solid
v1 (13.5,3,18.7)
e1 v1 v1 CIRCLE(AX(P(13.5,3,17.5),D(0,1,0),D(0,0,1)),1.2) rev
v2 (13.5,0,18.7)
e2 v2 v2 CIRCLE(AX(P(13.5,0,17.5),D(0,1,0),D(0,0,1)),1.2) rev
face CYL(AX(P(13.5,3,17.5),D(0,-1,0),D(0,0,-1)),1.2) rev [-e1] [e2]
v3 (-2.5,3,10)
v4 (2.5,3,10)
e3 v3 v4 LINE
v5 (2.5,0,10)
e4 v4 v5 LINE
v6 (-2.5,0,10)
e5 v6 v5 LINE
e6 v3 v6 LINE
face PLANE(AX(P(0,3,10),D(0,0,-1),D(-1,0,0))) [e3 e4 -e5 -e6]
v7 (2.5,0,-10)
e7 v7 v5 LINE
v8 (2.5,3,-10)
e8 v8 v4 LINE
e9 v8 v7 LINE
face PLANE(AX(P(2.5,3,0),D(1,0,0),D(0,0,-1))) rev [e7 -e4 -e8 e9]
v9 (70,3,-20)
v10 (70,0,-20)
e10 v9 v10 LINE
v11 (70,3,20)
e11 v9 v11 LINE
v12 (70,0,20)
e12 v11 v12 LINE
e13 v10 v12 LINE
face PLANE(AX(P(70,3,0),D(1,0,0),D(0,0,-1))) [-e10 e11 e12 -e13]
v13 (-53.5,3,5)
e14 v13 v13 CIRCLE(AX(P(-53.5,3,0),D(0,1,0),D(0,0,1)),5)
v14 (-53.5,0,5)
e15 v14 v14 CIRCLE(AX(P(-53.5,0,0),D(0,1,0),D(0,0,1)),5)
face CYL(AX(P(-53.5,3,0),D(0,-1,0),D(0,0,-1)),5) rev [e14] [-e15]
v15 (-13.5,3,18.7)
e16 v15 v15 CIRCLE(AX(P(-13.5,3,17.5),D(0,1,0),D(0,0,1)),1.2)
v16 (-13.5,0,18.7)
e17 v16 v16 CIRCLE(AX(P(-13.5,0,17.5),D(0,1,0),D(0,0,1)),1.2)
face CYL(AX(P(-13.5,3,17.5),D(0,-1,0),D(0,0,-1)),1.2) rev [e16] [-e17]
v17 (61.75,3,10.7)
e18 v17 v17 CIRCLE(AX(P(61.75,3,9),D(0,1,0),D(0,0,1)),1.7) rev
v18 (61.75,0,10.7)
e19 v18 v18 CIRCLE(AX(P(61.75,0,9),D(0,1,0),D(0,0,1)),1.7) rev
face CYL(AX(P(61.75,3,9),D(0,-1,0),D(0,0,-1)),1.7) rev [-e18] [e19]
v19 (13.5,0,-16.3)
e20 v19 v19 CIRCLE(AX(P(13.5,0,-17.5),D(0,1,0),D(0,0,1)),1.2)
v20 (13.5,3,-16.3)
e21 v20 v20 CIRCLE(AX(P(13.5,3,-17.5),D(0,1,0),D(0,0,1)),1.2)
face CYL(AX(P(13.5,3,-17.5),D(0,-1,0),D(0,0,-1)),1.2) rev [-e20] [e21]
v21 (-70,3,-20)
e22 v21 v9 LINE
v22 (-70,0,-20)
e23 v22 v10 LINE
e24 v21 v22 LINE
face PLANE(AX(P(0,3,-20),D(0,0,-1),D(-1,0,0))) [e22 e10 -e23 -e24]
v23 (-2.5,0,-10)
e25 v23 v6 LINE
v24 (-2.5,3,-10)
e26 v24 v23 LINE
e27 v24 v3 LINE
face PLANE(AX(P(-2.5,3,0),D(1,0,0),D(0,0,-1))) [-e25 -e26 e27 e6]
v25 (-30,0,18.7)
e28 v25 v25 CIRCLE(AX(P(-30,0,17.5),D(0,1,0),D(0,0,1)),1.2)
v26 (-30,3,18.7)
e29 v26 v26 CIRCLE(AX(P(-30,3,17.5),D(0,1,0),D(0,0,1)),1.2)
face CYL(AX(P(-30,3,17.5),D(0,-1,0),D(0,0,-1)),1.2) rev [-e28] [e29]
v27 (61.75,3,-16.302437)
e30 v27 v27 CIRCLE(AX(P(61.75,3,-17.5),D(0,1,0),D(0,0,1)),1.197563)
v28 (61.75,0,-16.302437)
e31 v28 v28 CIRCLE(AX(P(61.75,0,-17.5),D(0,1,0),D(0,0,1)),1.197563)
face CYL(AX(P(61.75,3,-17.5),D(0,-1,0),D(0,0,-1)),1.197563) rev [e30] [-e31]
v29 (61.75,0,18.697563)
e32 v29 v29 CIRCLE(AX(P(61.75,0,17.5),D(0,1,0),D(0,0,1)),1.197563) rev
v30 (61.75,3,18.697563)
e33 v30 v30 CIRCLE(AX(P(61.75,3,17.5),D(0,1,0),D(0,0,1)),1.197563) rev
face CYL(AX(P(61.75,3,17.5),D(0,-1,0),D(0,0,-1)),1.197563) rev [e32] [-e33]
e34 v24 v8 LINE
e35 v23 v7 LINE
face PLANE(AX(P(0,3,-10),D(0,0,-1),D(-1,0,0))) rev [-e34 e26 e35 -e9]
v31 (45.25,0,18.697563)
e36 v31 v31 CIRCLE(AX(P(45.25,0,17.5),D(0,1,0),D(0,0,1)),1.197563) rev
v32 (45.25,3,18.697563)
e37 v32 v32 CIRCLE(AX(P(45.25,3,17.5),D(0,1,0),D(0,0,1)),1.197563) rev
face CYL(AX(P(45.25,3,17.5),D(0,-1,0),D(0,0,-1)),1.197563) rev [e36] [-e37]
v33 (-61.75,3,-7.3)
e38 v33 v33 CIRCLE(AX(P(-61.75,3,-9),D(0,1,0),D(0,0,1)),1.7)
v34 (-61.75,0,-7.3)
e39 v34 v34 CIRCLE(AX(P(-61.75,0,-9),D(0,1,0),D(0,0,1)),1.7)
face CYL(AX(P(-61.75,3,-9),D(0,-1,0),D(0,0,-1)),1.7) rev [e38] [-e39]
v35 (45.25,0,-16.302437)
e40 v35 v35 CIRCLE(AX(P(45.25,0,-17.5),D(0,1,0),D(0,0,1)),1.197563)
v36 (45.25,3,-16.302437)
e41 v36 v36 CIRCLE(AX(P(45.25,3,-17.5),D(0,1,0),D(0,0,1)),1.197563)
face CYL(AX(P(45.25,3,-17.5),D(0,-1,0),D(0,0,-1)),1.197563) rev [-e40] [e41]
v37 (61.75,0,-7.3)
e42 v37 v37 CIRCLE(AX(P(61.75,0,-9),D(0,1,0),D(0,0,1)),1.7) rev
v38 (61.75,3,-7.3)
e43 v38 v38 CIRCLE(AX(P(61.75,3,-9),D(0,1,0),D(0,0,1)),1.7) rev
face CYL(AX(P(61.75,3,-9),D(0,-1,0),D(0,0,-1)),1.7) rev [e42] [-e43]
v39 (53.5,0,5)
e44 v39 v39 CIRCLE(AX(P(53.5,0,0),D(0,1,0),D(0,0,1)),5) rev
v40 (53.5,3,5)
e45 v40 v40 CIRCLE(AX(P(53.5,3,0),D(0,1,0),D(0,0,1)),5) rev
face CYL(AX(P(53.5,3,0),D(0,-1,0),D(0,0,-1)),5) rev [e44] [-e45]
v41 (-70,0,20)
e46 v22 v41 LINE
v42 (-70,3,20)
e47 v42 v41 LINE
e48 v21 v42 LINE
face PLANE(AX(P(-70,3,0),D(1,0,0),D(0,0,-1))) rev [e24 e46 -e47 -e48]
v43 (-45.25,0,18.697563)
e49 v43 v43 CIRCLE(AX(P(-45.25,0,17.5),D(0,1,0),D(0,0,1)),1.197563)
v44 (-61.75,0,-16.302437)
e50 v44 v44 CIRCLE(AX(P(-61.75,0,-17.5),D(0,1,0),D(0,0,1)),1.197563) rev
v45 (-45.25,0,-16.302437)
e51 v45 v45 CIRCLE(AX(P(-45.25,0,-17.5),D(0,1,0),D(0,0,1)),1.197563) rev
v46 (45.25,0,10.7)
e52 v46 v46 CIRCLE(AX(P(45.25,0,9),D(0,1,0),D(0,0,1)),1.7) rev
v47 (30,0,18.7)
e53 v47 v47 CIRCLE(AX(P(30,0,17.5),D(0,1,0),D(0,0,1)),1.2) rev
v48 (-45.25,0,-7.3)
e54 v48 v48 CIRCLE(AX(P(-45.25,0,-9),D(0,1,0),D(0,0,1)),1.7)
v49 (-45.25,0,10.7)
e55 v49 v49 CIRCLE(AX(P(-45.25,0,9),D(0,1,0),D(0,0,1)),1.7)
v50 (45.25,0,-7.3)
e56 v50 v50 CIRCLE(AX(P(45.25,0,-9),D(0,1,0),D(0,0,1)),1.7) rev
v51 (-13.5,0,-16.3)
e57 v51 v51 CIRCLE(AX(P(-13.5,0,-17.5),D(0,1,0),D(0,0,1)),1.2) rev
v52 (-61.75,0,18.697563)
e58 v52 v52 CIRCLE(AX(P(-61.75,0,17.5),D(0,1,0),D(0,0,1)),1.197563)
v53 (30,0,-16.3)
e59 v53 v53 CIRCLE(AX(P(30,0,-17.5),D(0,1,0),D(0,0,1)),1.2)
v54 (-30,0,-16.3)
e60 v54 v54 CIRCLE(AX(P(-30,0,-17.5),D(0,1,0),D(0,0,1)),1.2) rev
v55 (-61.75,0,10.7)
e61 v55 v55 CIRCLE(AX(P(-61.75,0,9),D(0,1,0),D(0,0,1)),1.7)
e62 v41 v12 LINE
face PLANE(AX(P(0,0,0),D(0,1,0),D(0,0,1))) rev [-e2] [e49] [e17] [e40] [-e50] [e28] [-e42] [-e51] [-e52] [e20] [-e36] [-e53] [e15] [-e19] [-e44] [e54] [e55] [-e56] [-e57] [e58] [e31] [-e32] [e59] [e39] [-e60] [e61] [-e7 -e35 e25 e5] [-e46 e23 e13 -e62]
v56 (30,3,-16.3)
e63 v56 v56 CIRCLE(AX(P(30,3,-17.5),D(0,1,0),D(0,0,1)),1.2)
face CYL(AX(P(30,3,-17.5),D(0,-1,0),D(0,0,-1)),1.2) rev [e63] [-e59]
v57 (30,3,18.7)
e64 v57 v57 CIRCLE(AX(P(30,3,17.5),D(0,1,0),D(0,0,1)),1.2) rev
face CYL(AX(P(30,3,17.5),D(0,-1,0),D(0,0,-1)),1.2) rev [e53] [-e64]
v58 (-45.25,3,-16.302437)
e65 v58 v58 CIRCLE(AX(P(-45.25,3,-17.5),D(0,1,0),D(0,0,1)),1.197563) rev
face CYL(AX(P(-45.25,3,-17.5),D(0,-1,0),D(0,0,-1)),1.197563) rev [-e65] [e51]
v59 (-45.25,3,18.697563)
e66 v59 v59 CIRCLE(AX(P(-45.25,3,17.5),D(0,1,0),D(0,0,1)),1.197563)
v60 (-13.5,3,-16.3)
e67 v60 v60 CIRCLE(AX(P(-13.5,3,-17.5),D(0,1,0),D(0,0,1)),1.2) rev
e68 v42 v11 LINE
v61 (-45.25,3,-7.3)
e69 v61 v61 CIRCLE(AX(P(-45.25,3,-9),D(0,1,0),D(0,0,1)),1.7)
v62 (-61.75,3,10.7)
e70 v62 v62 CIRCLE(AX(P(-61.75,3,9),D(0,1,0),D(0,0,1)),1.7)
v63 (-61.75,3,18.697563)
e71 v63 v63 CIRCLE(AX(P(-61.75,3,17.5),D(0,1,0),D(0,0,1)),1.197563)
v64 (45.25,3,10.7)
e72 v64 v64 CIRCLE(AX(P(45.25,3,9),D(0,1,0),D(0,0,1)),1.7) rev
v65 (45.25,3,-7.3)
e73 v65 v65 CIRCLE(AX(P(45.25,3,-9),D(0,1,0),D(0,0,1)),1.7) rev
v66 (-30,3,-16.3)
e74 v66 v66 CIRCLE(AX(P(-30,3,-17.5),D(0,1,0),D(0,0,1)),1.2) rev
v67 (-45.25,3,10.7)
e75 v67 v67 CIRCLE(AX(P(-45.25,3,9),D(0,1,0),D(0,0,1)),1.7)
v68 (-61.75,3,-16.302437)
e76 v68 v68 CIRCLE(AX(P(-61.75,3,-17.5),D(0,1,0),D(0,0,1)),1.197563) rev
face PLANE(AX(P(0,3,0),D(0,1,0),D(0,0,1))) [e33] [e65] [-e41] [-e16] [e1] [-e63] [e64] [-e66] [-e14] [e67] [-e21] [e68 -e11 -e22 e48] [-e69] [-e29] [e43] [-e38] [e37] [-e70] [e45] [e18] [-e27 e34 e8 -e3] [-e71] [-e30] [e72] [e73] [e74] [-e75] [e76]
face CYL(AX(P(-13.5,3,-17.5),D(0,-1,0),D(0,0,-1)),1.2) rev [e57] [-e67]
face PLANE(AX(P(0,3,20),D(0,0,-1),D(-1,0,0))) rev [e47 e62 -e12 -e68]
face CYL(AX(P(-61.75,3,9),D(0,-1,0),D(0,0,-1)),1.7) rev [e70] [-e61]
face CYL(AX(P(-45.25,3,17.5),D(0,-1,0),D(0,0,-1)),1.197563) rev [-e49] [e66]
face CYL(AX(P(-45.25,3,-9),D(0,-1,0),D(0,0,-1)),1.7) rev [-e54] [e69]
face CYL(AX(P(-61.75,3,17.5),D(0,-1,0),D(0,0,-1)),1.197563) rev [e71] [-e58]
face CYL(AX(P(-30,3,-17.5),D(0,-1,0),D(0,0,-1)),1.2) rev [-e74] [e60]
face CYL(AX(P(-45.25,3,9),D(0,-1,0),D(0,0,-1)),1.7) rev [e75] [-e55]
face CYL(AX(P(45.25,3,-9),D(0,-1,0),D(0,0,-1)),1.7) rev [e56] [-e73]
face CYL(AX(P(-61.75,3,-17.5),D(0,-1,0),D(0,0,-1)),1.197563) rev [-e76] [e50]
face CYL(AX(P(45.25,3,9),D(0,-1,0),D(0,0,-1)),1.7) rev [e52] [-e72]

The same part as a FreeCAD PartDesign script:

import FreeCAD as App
import Part
import Sketcher
from FreeCAD import Vector

doc = App.newDocument("Part")
body = doc.addObject("PartDesign::Body", "Body")

# Sketch on XZ plane
sketch1 = doc.addObject("Sketcher::SketchObject", "Sketch")
body.addObject(sketch1)
sketch1.AttachmentSupport = (doc.XZ_Plane, [""])
sketch1.MapMode = "FlatFace"
sketch1.addGeometry([
    Part.LineSegment(Vector(70, 20, 0), Vector(70, -20, 0)),  # 0
    Part.LineSegment(Vector(70, -20, 0), Vector(-70, -20, 0)),  # 1
    Part.LineSegment(Vector(-70, -20, 0), Vector(-70, 20, 0)),  # 2
    Part.LineSegment(Vector(-70, 20, 0), Vector(70, 20, 0)),  # 3
    Part.Circle(Vector(-30, 17.5, 0), Vector(0, 0, 1), 1.2),  # 4
    Part.Circle(Vector(-13.5, 17.5, 0), Vector(0, 0, 1), 1.2),  # 5
    Part.Circle(Vector(13.5, 17.5, 0), Vector(0, 0, 1), 1.2),  # 6
    Part.Circle(Vector(30, 17.5, 0), Vector(0, 0, 1), 1.2),  # 7
    Part.LineSegment(Vector(2.5, 10, 0), Vector(-2.5, 10, 0)),  # 8
    Part.LineSegment(Vector(-2.5, 10, 0), Vector(-2.5, -10, 0)),  # 9
    Part.LineSegment(Vector(-2.5, -10, 0), Vector(2.5, -10, 0)),  # 10
    Part.LineSegment(Vector(2.5, -10, 0), Vector(2.5, 10, 0)),  # 11
    Part.Circle(Vector(-30, -17.5, 0), Vector(0, 0, 1), 1.2),  # 12
    Part.Circle(Vector(-13.5, -17.5, 0), Vector(0, 0, 1), 1.2),  # 13
    Part.Circle(Vector(13.5, -17.5, 0), Vector(0, 0, 1), 1.2),  # 14
    Part.Circle(Vector(30, -17.5, 0), Vector(0, 0, 1), 1.2),  # 15
    Part.Circle(Vector(-45.25, -17.5, 0), Vector(0, 0, 1), 1.197563),  # 16
    Part.Circle(Vector(-61.75, 17.5, 0), Vector(0, 0, 1), 1.197563),  # 17
    Part.Circle(Vector(-61.75, 9, 0), Vector(0, 0, 1), 1.7),  # 18
    Part.Circle(Vector(-45.25, 17.5, 0), Vector(0, 0, 1), 1.197563),  # 19
    Part.Circle(Vector(-45.25, 9, 0), Vector(0, 0, 1), 1.7),  # 20
    Part.Circle(Vector(-61.75, -9, 0), Vector(0, 0, 1), 1.7),  # 21
    Part.Circle(Vector(-61.75, -17.5, 0), Vector(0, 0, 1), 1.197563),  # 22
    Part.Circle(Vector(-53.5, 0, 0), Vector(0, 0, 1), 5),  # 23
    Part.Circle(Vector(-45.25, -9, 0), Vector(0, 0, 1), 1.7),  # 24
    Part.Circle(Vector(61.75, -17.5, 0), Vector(0, 0, 1), 1.197563),  # 25
    Part.Circle(Vector(45.25, 17.5, 0), Vector(0, 0, 1), 1.197563),  # 26
    Part.Circle(Vector(45.25, 9, 0), Vector(0, 0, 1), 1.7),  # 27
    Part.Circle(Vector(61.75, 17.5, 0), Vector(0, 0, 1), 1.197563),  # 28
    Part.Circle(Vector(61.75, 9, 0), Vector(0, 0, 1), 1.7),  # 29
    Part.Circle(Vector(45.25, -9, 0), Vector(0, 0, 1), 1.7),  # 30
    Part.Circle(Vector(45.25, -17.5, 0), Vector(0, 0, 1), 1.197563),  # 31
    Part.Circle(Vector(53.5, 0, 0), Vector(0, 0, 1), 5),  # 32
    Part.Circle(Vector(61.75, -9, 0), Vector(0, 0, 1), 1.7),  # 33
], False)
sketch1.addConstraint([
    Sketcher.Constraint("Coincident", 0, 2, 1, 1),
    Sketcher.Constraint("Coincident", 1, 2, 2, 1),
    Sketcher.Constraint("Coincident", 2, 2, 3, 1),
    Sketcher.Constraint("Coincident", 3, 2, 0, 1),
    Sketcher.Constraint("Coincident", 8, 2, 9, 1),
    Sketcher.Constraint("Coincident", 9, 2, 10, 1),
    Sketcher.Constraint("Coincident", 10, 2, 11, 1),
    Sketcher.Constraint("Coincident", 11, 2, 8, 1),
    Sketcher.Constraint("Vertical", 0),
    Sketcher.Constraint("Horizontal", 1),
    Sketcher.Constraint("Vertical", 2),
    Sketcher.Constraint("Horizontal", 3),
    Sketcher.Constraint("Horizontal", 8),
    Sketcher.Constraint("Vertical", 9),
    Sketcher.Constraint("Horizontal", 10),
    Sketcher.Constraint("Vertical", 11),
    Sketcher.Constraint("Equal", 4, 5),
    Sketcher.Constraint("Equal", 5, 6),
    Sketcher.Constraint("Equal", 6, 7),
    Sketcher.Constraint("Equal", 7, 12),
    Sketcher.Constraint("Equal", 12, 13),
    Sketcher.Constraint("Equal", 13, 14),
    Sketcher.Constraint("Equal", 14, 15),
    Sketcher.Constraint("Equal", 16, 17),
    Sketcher.Constraint("Equal", 17, 19),
    Sketcher.Constraint("Equal", 18, 20),
    Sketcher.Constraint("Equal", 20, 21),
    Sketcher.Constraint("Equal", 19, 22),
    Sketcher.Constraint("Equal", 21, 24),
    Sketcher.Constraint("Equal", 22, 25),
    Sketcher.Constraint("Equal", 25, 26),
    Sketcher.Constraint("Equal", 24, 27),
    Sketcher.Constraint("Equal", 26, 28),
    Sketcher.Constraint("Equal", 27, 29),
    Sketcher.Constraint("Equal", 29, 30),
    Sketcher.Constraint("Equal", 28, 31),
    Sketcher.Constraint("Equal", 23, 32),
    Sketcher.Constraint("Equal", 30, 33),
    Sketcher.Constraint("Symmetric", 7, 3, 12, 3, -1, 1),
    Sketcher.Constraint("Symmetric", 6, 3, 13, 3, -1, 1),
    Sketcher.Constraint("Symmetric", 5, 3, 14, 3, -1, 1),
    Sketcher.Constraint("Symmetric", 4, 3, 15, 3, -1, 1),
    Sketcher.Constraint("Symmetric", 17, 3, 25, 3, -1, 1),
    Sketcher.Constraint("Symmetric", 16, 3, 26, 3, -1, 1),
    Sketcher.Constraint("Symmetric", 24, 3, 27, 3, -1, 1),
    Sketcher.Constraint("Symmetric", 22, 3, 28, 3, -1, 1),
    Sketcher.Constraint("Symmetric", 21, 3, 29, 3, -1, 1),
    Sketcher.Constraint("Symmetric", 20, 3, 30, 3, -1, 1),
    Sketcher.Constraint("Symmetric", 19, 3, 31, 3, -1, 1),
    Sketcher.Constraint("Symmetric", 23, 3, 32, 3, -1, 1),
    Sketcher.Constraint("Symmetric", 18, 3, 33, 3, -1, 1),
    Sketcher.Constraint("Symmetric", 0, 2, 2, 2, -1, 1),
    Sketcher.Constraint("Symmetric", 8, 2, 10, 2, -1, 1),
    Sketcher.Constraint("Symmetric", 5, 3, 6, 3, -2),
    Sketcher.Constraint("Symmetric", 4, 3, 7, 3, -2),
    Sketcher.Constraint("Symmetric", 22, 3, 25, 3, -2),
    Sketcher.Constraint("Symmetric", 19, 3, 26, 3, -2),
    Sketcher.Constraint("Symmetric", 20, 3, 27, 3, -2),
    Sketcher.Constraint("Symmetric", 18, 3, 29, 3, -2),
    Sketcher.Constraint("PointOnObject", 23, 3, -1),
    Sketcher.Constraint("Horizontal", 4, 3, 5, 3),
    Sketcher.Constraint("Horizontal", 15, 3, 16, 3),
    Sketcher.Constraint("Horizontal", 7, 3, 17, 3),
    Sketcher.Constraint("Horizontal", 18, 3, 20, 3),
    Sketcher.Constraint("Vertical", 17, 3, 18, 3),
    Sketcher.Constraint("Vertical", 19, 3, 20, 3),
    Sketcher.Constraint("Diameter", 23, 10.0),
    Sketcher.Constraint("Diameter", 4, 2.4),
    Sketcher.Constraint("Diameter", 18, 3.4),
    Sketcher.Constraint("DistanceX", 1, 2, 1, 1, 140.0),
    Sketcher.Constraint("DistanceX", 8, 2, 8, 1, 5.0),
    Sketcher.Constraint("DistanceY", 0, 2, 0, 1, 40.0),
    Sketcher.Constraint("DistanceY", 9, 2, 9, 1, 20.0),
    Sketcher.Constraint("DistanceX", 4, 3, -1, 1, 30.0),
    Sketcher.Constraint("DistanceY", -1, 1, 18, 3, 9.0),
    Sketcher.Constraint("DistanceX", 5, 3, 6, 3, 27.0),
    Sketcher.Constraint("DistanceY", 12, 3, 4, 3, 35.0),
    Sketcher.Constraint("DistanceX", 23, 3, -1, 1, 53.5),
    Sketcher.Constraint("DistanceX", 17, 3, 16, 3, 16.5),
    Sketcher.Constraint("DistanceX", 16, 3, -1, 1, 45.25),
    Sketcher.Constraint("Diameter", 16, 2.395127),
])
pad1 = doc.addObject("PartDesign::Pad", "Pad")
body.addObject(pad1)
pad1.Profile = sketch1
pad1.Length = 3
pad1.Reversed = True

doc.recompute()
